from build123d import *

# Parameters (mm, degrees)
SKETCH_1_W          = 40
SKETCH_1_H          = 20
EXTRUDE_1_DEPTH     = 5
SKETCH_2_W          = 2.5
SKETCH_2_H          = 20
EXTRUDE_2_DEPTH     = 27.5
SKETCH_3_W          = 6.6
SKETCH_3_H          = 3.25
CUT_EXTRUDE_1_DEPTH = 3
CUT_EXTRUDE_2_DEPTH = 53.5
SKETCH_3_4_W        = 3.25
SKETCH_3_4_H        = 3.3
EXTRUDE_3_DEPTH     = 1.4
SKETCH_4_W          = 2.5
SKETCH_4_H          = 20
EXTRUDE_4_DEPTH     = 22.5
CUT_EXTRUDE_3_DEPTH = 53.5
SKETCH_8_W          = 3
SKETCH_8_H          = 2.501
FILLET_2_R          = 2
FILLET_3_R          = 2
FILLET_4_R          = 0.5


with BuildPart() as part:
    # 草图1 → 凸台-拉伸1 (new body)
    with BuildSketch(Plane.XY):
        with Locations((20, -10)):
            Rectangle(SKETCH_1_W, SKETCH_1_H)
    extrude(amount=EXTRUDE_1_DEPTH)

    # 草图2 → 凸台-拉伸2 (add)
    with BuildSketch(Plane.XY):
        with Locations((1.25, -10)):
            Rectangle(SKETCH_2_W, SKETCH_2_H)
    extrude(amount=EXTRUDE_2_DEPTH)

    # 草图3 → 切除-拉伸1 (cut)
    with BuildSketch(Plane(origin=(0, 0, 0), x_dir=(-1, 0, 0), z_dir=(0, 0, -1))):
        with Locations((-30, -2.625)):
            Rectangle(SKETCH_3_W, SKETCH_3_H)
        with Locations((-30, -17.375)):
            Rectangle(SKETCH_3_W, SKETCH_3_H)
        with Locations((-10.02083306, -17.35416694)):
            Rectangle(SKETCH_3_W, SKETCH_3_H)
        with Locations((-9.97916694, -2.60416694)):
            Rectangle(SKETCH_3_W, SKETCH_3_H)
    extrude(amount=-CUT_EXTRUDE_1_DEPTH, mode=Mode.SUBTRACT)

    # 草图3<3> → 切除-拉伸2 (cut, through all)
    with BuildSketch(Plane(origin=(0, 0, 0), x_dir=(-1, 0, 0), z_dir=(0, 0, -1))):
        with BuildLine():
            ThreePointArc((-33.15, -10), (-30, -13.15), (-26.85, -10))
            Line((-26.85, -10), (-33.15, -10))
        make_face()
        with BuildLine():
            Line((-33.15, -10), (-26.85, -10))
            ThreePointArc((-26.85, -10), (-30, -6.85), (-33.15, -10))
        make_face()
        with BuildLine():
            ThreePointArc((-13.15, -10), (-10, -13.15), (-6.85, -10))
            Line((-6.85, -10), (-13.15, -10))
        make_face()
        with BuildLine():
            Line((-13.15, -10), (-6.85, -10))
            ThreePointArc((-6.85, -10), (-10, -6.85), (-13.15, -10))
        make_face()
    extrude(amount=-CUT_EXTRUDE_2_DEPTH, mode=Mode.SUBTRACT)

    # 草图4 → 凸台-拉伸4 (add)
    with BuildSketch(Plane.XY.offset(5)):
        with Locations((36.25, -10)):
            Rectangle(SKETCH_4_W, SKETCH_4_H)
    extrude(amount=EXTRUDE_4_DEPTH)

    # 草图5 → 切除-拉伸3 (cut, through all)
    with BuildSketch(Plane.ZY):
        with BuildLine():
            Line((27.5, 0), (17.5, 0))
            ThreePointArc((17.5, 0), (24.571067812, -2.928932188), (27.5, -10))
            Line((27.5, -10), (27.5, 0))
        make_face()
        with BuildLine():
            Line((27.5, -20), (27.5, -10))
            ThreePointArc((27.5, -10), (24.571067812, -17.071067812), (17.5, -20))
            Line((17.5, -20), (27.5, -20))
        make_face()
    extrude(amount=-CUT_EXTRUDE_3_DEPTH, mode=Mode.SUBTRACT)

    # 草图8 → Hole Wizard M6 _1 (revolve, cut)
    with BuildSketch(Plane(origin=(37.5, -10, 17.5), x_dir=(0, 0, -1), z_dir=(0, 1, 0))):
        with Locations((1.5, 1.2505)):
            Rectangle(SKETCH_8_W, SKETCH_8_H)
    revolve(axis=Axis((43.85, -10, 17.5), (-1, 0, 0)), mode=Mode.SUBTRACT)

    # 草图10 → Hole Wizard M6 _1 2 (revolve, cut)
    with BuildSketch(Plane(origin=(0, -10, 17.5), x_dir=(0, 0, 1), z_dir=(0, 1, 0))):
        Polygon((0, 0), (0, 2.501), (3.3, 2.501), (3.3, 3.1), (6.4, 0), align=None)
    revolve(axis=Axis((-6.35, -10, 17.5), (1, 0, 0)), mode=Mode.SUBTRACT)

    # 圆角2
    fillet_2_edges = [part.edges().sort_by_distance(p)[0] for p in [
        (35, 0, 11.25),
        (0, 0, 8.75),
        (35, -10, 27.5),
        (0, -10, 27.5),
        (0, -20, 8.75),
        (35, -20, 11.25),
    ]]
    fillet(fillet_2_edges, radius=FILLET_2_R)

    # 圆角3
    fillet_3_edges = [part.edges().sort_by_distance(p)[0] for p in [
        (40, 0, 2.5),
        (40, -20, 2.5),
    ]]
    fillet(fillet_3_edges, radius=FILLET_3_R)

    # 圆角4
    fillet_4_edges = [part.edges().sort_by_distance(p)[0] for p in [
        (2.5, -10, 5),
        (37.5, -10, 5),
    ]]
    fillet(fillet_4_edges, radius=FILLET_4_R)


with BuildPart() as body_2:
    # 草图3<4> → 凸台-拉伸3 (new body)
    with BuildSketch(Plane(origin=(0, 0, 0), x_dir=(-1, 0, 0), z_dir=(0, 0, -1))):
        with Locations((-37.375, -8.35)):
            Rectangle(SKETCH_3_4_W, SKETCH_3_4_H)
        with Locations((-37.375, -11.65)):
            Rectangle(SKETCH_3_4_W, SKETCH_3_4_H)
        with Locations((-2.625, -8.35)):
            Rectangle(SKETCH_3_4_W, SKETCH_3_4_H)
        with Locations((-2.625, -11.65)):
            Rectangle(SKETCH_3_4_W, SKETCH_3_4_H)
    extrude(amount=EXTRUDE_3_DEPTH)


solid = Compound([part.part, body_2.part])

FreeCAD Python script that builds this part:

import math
import FreeCAD as App
import Part
import Sketcher
Q = App.Units.Quantity


def edges_at(feature, points):
    """Names of the edges that pass closest to the given points."""
    edges = feature.Shape.Edges
    near = lambda p: min(range(len(edges)), key=lambda i: edges[i].distToShape(Part.Vertex(*p))[0])
    return sorted({f"Edge{near(p) + 1}" for p in points})

doc = App.newDocument("Part")
body = doc.addObject("PartDesign::Body", "Body")

sketch1 = body.newObject("Sketcher::SketchObject", "Sketch")
sketch1.AttachmentSupport = (doc.getObject("XY_Plane"), [""])
sketch1.MapMode = "FlatFace"
sketch1.addGeometry([
    Part.LineSegment(App.Vector(0, 0, 0), App.Vector(0, -20, 0)),
    Part.LineSegment(App.Vector(0, -20, 0), App.Vector(40, -20, 0)),
    Part.LineSegment(App.Vector(40, -20, 0), App.Vector(40, 0, 0)),
    Part.LineSegment(App.Vector(40, 0, 0), App.Vector(0, 0, 0)),
], False)
sketch1.addConstraint([
    Sketcher.Constraint("Coincident", 0, 2, 1, 1),
    Sketcher.Constraint("Coincident", 1, 2, 2, 1),
    Sketcher.Constraint("Coincident", 2, 2, 3, 1),
    Sketcher.Constraint("Coincident", 3, 2, 0, 1),
    Sketcher.Constraint("Vertical", 0),
    Sketcher.Constraint("Horizontal", 1),
    Sketcher.Constraint("Vertical", 2),
    Sketcher.Constraint("Horizontal", 3),
    Sketcher.Constraint("Coincident", 3, 2, -1, 1),
    Sketcher.Constraint("DistanceX", 1, 1, 1, 2, 40.0),
    Sketcher.Constraint("DistanceY", 0, 2, 0, 1, 20.0),
])
pad1 = body.newObject("PartDesign::Pad", "Pad")
pad1.Profile = sketch1
pad1.Length = 5

sketch2 = body.newObject("Sketcher::SketchObject", "Sketch001")
sketch2.AttachmentSupport = (doc.getObject("XY_Plane"), [""])
sketch2.MapMode = "FlatFace"
sketch2.addGeometry([
    Part.LineSegment(App.Vector(0, 0, 0), App.Vector(0, -20, 0)),
    Part.LineSegment(App.Vector(0, -20, 0), App.Vector(2.5, -20, 0)),
    Part.LineSegment(App.Vector(2.5, -20, 0), App.Vector(2.5, 0, 0)),
    Part.LineSegment(App.Vector(2.5, 0, 0), App.Vector(0, 0, 0)),
], False)
sketch2.addConstraint([
    Sketcher.Constraint("Coincident", 0, 2, 1, 1),
    Sketcher.Constraint("Coincident", 1, 2, 2, 1),
    Sketcher.Constraint("Coincident", 2, 2, 3, 1),
    Sketcher.Constraint("Coincident", 3, 2, 0, 1),
    Sketcher.Constraint("Vertical", 0),
    Sketcher.Constraint("Horizontal", 1),
    Sketcher.Constraint("Vertical", 2),
    Sketcher.Constraint("Horizontal", 3),
    Sketcher.Constraint("Coincident", 3, 2, -1, 1),
    Sketcher.Constraint("DistanceY", 0, 2, 0, 1, 20.0),
    Sketcher.Constraint("DistanceX", 1, 1, 1, 2, 2.5),
])
pad2 = body.newObject("PartDesign::Pad", "Pad001")
pad2.Profile = sketch2
pad2.Length = 27.5

sketch3 = body.newObject("Sketcher::SketchObject", "Sketch002")
sketch3.AttachmentSupport = (doc.getObject("XY_Plane"), [""])
sketch3.MapMode = "FlatFace"
sketch3.addGeometry([
    Part.LineSegment(App.Vector(33.3, -1, 0), App.Vector(33.3, -4.2, 0)),
    Part.LineSegment(App.Vector(33.3, -4.2, 0), App.Vector(26.7, -4.2, 0)),
    Part.LineSegment(App.Vector(26.7, -4.2, 0), App.Vector(26.7, -1, 0)),
    Part.LineSegment(App.Vector(26.7, -1, 0), App.Vector(33.3, -1, 0)),
    Part.LineSegment(App.Vector(33.3, -15.8, 0), App.Vector(33.3, -19, 0)),
    Part.LineSegment(App.Vector(33.3, -19, 0), App.Vector(26.7, -19, 0)),
    Part.LineSegment(App.Vector(26.7, -19, 0), App.Vector(26.7, -15.8, 0)),
    Part.LineSegment(App.Vector(26.7, -15.8, 0), App.Vector(33.3, -15.8, 0)),
    Part.LineSegment(App.Vector(13.3, -15.7, 0), App.Vector(13.3, -19, 0)),
    Part.LineSegment(App.Vector(13.3, -19, 0), App.Vector(6.7, -19, 0)),
    Part.LineSegment(App.Vector(6.7, -19, 0), App.Vector(6.7, -15.7, 0)),
    Part.LineSegment(App.Vector(6.7, -15.7, 0), App.Vector(13.3, -15.7, 0)),
    Part.LineSegment(App.Vector(13.3, -1, 0), App.Vector(13.3, -4.2, 0)),
    Part.LineSegment(App.Vector(13.3, -4.2, 0), App.Vector(6.7, -4.2, 0)),
    Part.LineSegment(App.Vector(6.7, -4.2, 0), App.Vector(6.7, -1, 0)),
    Part.LineSegment(App.Vector(6.7, -1, 0), App.Vector(13.3, -1, 0)),
], False)
sketch3.addConstraint([
    Sketcher.Constraint("Coincident", 0, 2, 1, 1),
    Sketcher.Constraint("Coincident", 1, 2, 2, 1),
    Sketcher.Constraint("Coincident", 2, 2, 3, 1),
    Sketcher.Constraint("Coincident", 3, 2, 0, 1),
    Sketcher.Constraint("Coincident", 4, 2, 5, 1),
    Sketcher.Constraint("Coincident", 5, 2, 6, 1),
    Sketcher.Constraint("Coincident", 6, 2, 7, 1),
    Sketcher.Constraint("Coincident", 7, 2, 4, 1),
    Sketcher.Constraint("Coincident", 8, 2, 9, 1),
    Sketcher.Constraint("Coincident", 9, 2, 10, 1),
    Sketcher.Constraint("Coincident", 10, 2, 11, 1),
    Sketcher.Constraint("Coincident", 11, 2, 8, 1),
    Sketcher.Constraint("Coincident", 12, 2, 13, 1),
    Sketcher.Constraint("Coincident", 13, 2, 14, 1),
    Sketcher.Constraint("Coincident", 14, 2, 15, 1),
    Sketcher.Constraint("Coincident", 15, 2, 12, 1),
    Sketcher.Constraint("Vertical", 0),
    Sketcher.Constraint("Horizontal", 1),
    Sketcher.Constraint("Vertical", 2),
    Sketcher.Constraint("Horizontal", 3),
    Sketcher.Constraint("Vertical", 4),
    Sketcher.Constraint("Horizontal", 5),
    Sketcher.Constraint("Vertical", 6),
    Sketcher.Constraint("Horizontal", 7),
    Sketcher.Constraint("Vertical", 8),
    Sketcher.Constraint("Horizontal", 9),
    Sketcher.Constraint("Vertical", 10),
    Sketcher.Constraint("Horizontal", 11),
    Sketcher.Constraint("Vertical", 12),
    Sketcher.Constraint("Horizontal", 13),
    Sketcher.Constraint("Vertical", 14),
    Sketcher.Constraint("Horizontal", 15),
    Sketcher.Constraint("Vertical", 3, 2, 4, 2),
    Sketcher.Constraint("Vertical", 2, 2, 5, 2),
    Sketcher.Constraint("Equal", 7, 9),
    Sketcher.Constraint("Equal", 11, 13),
    Sketcher.Constraint("Equal", 2, 4),
    Sketcher.Constraint("Equal", 6, 8),
    Sketcher.Constraint("Equal", 10, 12),
    Sketcher.Constraint("DistanceX", 1, 2, 1, 1, 6.6),
    Sketcher.Constraint("DistanceY", 2, 2, -1, 1, 1.0),
    Sketcher.Constraint("DistanceY", 4, 2, -1, 1, 19.0),
    Sketcher.Constraint("DistanceY", 9, 2, 14, 2, 18.0),
    Sketcher.Constraint("DistanceY", 0, 2, 0, 1, 3.25),
    Sketcher.Constraint("DistanceX", -1, 1, 0, 2, 33.3),
    Sketcher.Constraint("DistanceX", -1, 1, 8, 2, 13.320833),
    Sketcher.Constraint("DistanceY", 8, 2, -1, 1, 18.979167),
    Sketcher.Constraint("DistanceX", -1, 1, 12, 2, 13.279167),
])
pocket1 = body.newObject("PartDesign::Pocket", "Pocket")
pocket1.Profile = sketch3
pocket1.Length = 3
pocket1.Reversed = True

sketch4 = body.newObject("Sketcher::SketchObject", "Sketch003")
sketch4.AttachmentSupport = (doc.getObject("XY_Plane"), [""])
sketch4.MapMode = "FlatFace"
sketch4.addGeometry([
    Part.Circle(App.Vector(30, -10, 0), App.Vector(0, 0, 1), 3.1),
    Part.Circle(App.Vector(10, -10, 0), App.Vector(0, 0, 1), 3.1),
], False)
sketch4.addConstraint([
    Sketcher.Constraint("Equal", 0, 1),
    Sketcher.Constraint("Horizontal", 0, 3, 1, 3),
    Sketcher.Constraint("Diameter", 0, 6.3),
    Sketcher.Constraint("DistanceX", -1, 1, 0, 3, 30.0),
    Sketcher.Constraint("DistanceY", 0, 3, -1, 1, 10.0),
    Sketcher.Constraint("DistanceX", -1, 1, 1, 3, 10.0),
])
pocket2 = body.newObject("PartDesign::Pocket", "Pocket001")
pocket2.Profile = sketch4
pocket2.Type = "ThroughAll"
pocket2.Reversed = True

sketch5 = body.newObject("Sketcher::SketchObject", "Sketch004")
sketch5.AttachmentSupport = (doc.getObject("XY_Plane"), [""])
sketch5.MapMode = "FlatFace"
sketch5.AttachmentOffset = App.Placement(App.Vector(0, 0, 5), App.Rotation())
sketch5.addGeometry([
    Part.LineSegment(App.Vector(35, 0, 0), App.Vector(35, -20, 0)),
    Part.LineSegment(App.Vector(35, -20, 0), App.Vector(37.5, -20, 0)),
    Part.LineSegment(App.Vector(37.5, -20, 0), App.Vector(37.5, 0, 0)),
    Part.LineSegment(App.Vector(37.5, 0, 0), App.Vector(35, 0, 0)),
], False)
sketch5.addConstraint([
    Sketcher.Constraint("Coincident", 0, 2, 1, 1),
    Sketcher.Constraint("Coincident", 1, 2, 2, 1),
    Sketcher.Constraint("Coincident", 2, 2, 3, 1),
    Sketcher.Constraint("Coincident", 3, 2, 0, 1),
    Sketcher.Constraint("Vertical", 0),
    Sketcher.Constraint("Horizontal", 1),
    Sketcher.Constraint("Vertical", 2),
    Sketcher.Constraint("Horizontal", 3),
    Sketcher.Constraint("PointOnObject", 2, 2, -1),
    Sketcher.Constraint("DistanceY", 0, 2, 0, 1, 20.0),
    Sketcher.Constraint("DistanceX", 1, 1, 1, 2, 2.5),
    Sketcher.Constraint("DistanceX", -1, 1, 0, 2, 35.0),
])
pad3 = body.newObject("PartDesign::Pad", "Pad002")
pad3.Profile = sketch5
pad3.Length = 22.5

sketch6 = body.newObject("Sketcher::SketchObject", "Sketch005")
sketch6.AttachmentSupport = (doc.getObject("YZ_Plane"), [""])
sketch6.MapMode = "FlatFace"
sketch6.addGeometry([
    Part.LineSegment(App.Vector(0, 28, 0), App.Vector(0, 18, 0)),
    Part.ArcOfCircle(Part.Circle(App.Vector(-10, 18, 0), App.Vector(0, 0, 1), 10), math.radians(0), math.radians(90)),
    Part.LineSegment(App.Vector(-10, 28, 0), App.Vector(0, 28, 0)),
    Part.LineSegment(App.Vector(-20, 28, 0), App.Vector(-10, 28, 0)),
    Part.ArcOfCircle(Part.Circle(App.Vector(-10, 18, 0), App.Vector(0, 0, 1), 10), math.radians(90), math.radians(180)),
    Part.LineSegment(App.Vector(-20, 18, 0), App.Vector(-20, 28, 0)),
], False)
sketch6.addConstraint([
    Sketcher.Constraint("Tangent", 0, 2, 1, 1),
    Sketcher.Constraint("Tangent", 1, 2, 2, 1),
    Sketcher.Constraint("Coincident", 2, 2, 0, 1),
    Sketcher.Constraint("Tangent", 3, 2, 4, 1),
    Sketcher.Constraint("Tangent", 4, 2, 5, 1),
    Sketcher.Constraint("Coincident", 5, 2, 3, 1),
    Sketcher.Constraint("Vertical", 0),
    Sketcher.Constraint("Horizontal", 2),
    Sketcher.Constraint("Horizontal", 3),
    Sketcher.Constraint("Vertical", 5),
    Sketcher.Constraint("Coincident", 4, 3, 1, 3),
    Sketcher.Constraint("Equal", 1, 4),
    Sketcher.Constraint("PointOnObject", 0, 2, -2),
    Sketcher.Constraint("Radius", 1, 10.0),
    Sketcher.Constraint("DistanceY", -1, 1, 1, 3, 17.5),
])
pocket3 = body.newObject("PartDesign::Pocket", "Pocket002")
pocket3.Profile = sketch6
pocket3.Type = "ThroughAll"
pocket3.Reversed = True

sketch7 = body.newObject("Sketcher::SketchObject", "Sketch006")
sketch7.AttachmentSupport = (doc.getObject("XZ_Plane"), [""])
sketch7.MapMode = "FlatFace"
sketch7.AttachmentOffset = App.Placement(App.Vector(0, 0, 10), App.Rotation())
sketch7.addGeometry([
    Part.LineSegment(App.Vector(35, 17.5, 0), App.Vector(37.5, 17.5, 0)),
    Part.LineSegment(App.Vector(37.5, 17.5, 0), App.Vector(37.5, 14.5, 0)),
    Part.LineSegment(App.Vector(37.5, 14.5, 0), App.Vector(35, 14.5, 0)),
    Part.LineSegment(App.Vector(35, 14.5, 0), App.Vector(35, 17.5, 0)),
], False)
sketch7.addGeometry(Part.LineSegment(App.Vector(37.5, 17.5, 0), App.Vector(35, 17.5, 0)), True)
sketch7.addConstraint([
    Sketcher.Constraint("Coincident", 0, 2, 1, 1),
    Sketcher.Constraint("Coincident", 1, 2, 2, 1),
    Sketcher.Constraint("Coincident", 2, 2, 3, 1),
    Sketcher.Constraint("Coincident", 3, 2, 0, 1),
    Sketcher.Constraint("Horizontal", 0),
    Sketcher.Constraint("Vertical", 1),
    Sketcher.Constraint("Horizontal", 2),
    Sketcher.Constraint("Vertical", 3),
    Sketcher.Constraint("Horizontal", 4),
    Sketcher.Constraint("Coincident", 4, 1, 0, 2),
    Sketcher.Constraint("Vertical", 2, 2, 4, 2),
    Sketcher.Constraint("DistanceY", 1, 2, 1, 1, 3.0),
    Sketcher.Constraint("DistanceX", -1, 1, 0, 2, 37.5),
    Sketcher.Constraint("DistanceY", -1, 1, 0, 2, 17.5),
    Sketcher.Constraint("DistanceX", 0, 1, 0, 2, 2.501),
])
groove = body.newObject("PartDesign::Groove", "Groove")
groove.Profile = sketch7
groove.ReferenceAxis = (sketch7, ["Axis0"])
groove.Angle = 360

sketch8 = body.newObject("Sketcher::SketchObject", "Sketch007")
sketch8.AttachmentSupport = (doc.getObject("XZ_Plane"), [""])
sketch8.MapMode = "FlatFace"
sketch8.AttachmentOffset = App.Placement(App.Vector(0, 0, 10), App.Rotation())
sketch8.addGeometry([
    Part.LineSegment(App.Vector(2.5, 17.5, 0), App.Vector(0, 17.5, 0)),
    Part.LineSegment(App.Vector(0, 17.5, 0), App.Vector(0, 23.9, 0)),
    Part.LineSegment(App.Vector(0, 23.9, 0), App.Vector(3.1, 20.8, 0)),
    Part.LineSegment(App.Vector(3.1, 20.8, 0), App.Vector(2.5, 20.8, 0)),
    Part.LineSegment(App.Vector(2.5, 20.8, 0), App.Vector(2.5, 17.5, 0)),
], False)
sketch8.addGeometry(Part.LineSegment(App.Vector(0, 17.5, 0), App.Vector(3.1, 17.5, 0)), True)
sketch8.addConstraint([
    Sketcher.Constraint("Coincident", 0, 2, 1, 1),
    Sketcher.Constraint("Coincident", 1, 2, 2, 1),
    Sketcher.Constraint("Coincident", 2, 2, 3, 1),
    Sketcher.Constraint("Coincident", 3, 2, 4, 1),
    Sketcher.Constraint("Coincident", 4, 2, 0, 1),
    Sketcher.Constraint("Horizontal", 0),
    Sketcher.Constraint("Vertical", 1),
    Sketcher.Constraint("Horizontal", 3),
    Sketcher.Constraint("Vertical", 4),
    Sketcher.Constraint("Horizontal", 5),
    Sketcher.Constraint("Coincident", 5, 1, 0, 2),
    Sketcher.Constraint("PointOnObject", 0, 2, -2),
    Sketcher.Constraint("Vertical", 2, 2, 5, 2),
    Sketcher.Constraint("Angle", 2, Q("-45 deg")),
    Sketcher.Constraint("DistanceX", 5, 1, 5, 2, 3.1),
    Sketcher.Constraint("DistanceY", 1, 1, 1, 2, 6.4),
    Sketcher.Constraint("DistanceY", -1, 1, 0, 2, 17.5),
    Sketcher.Constraint("DistanceX", 0, 2, 0, 1, 2.501),
])
groove2 = body.newObject("PartDesign::Groove", "Groove001")
groove2.Profile = sketch8
groove2.ReferenceAxis = (sketch8, ["Axis0"])
groove2.Angle = 360
doc.recompute()

fillet = body.newObject("PartDesign::Fillet", "Fillet")
fillet.Base = (groove2, edges_at(groove2, [
    (35, 0, 11.25),
    (0, 0, 8.75),
    (35, -17.071, 24.571),
    (0, -17.071, 24.571),
    (0, -20, 8.75),
    (35, -20, 11.25),
]))
fillet.Radius = 2
doc.recompute()

fillet2 = body.newObject("PartDesign::Fillet", "Fillet001")
fillet2.Base = (fillet, edges_at(fillet, [(40, 0, 2.5), (40, -20, 2.5)]))
fillet2.Radius = 2
doc.recompute()

fillet3 = body.newObject("PartDesign::Fillet", "Fillet002")
fillet3.Base = (fillet2, edges_at(fillet2, [(2.5, -10, 5), (37.5, -10, 5)]))
fillet3.Radius = 0.5
body2 = doc.addObject("PartDesign::Body", "Body001")
body2.AllowCompound = True

sketch9 = body2.newObject("Sketcher::SketchObject", "Sketch008")
sketch9.AttachmentSupport = (doc.getObject("XY_Plane001"), [""])
sketch9.MapMode = "FlatFace"
sketch9.addGeometry([
    Part.LineSegment(App.Vector(39, -6.7, 0), App.Vector(39, -13.3, 0)),
    Part.LineSegment(App.Vector(39, -13.3, 0), App.Vector(35.8, -13.3, 0)),
    Part.LineSegment(App.Vector(35.8, -13.3, 0), App.Vector(35.8, -6.7, 0)),
    Part.LineSegment(App.Vector(35.8, -6.7, 0), App.Vector(39, -6.7, 0)),
    Part.LineSegment(App.Vector(4.2, -6.7, 0), App.Vector(4.2, -13.3, 0)),
    Part.LineSegment(App.Vector(4.2, -13.3, 0), App.Vector(1, -13.3, 0)),
    Part.LineSegment(App.Vector(1, -13.3, 0), App.Vector(1, -6.7, 0)),
    Part.LineSegment(App.Vector(1, -6.7, 0), App.Vector(4.2, -6.7, 0)),
], False)
sketch9.addConstraint([
    Sketcher.Constraint("Coincident", 0, 2, 1, 1),
    Sketcher.Constraint("Coincident", 1, 2, 2, 1),
    Sketcher.Constraint("Coincident", 2, 2, 3, 1),
    Sketcher.Constraint("Coincident", 3, 2, 0, 1),
    Sketcher.Constraint("Coincident", 4, 2, 5, 1),
    Sketcher.Constraint("Coincident", 5, 2, 6, 1),
    Sketcher.Constraint("Coincident", 6, 2, 7, 1),
    Sketcher.Constraint("Coincident", 7, 2, 4, 1),
    Sketcher.Constraint("Vertical", 0),
    Sketcher.Constraint("Horizontal", 1),
    Sketcher.Constraint("Vertical", 2),
    Sketcher.Constraint("Horizontal", 3),
    Sketcher.Constraint("Vertical", 4),
    Sketcher.Constraint("Horizontal", 5),
    Sketcher.Constraint("Vertical", 6),
    Sketcher.Constraint("Horizontal", 7),
    Sketcher.Constraint("Horizontal", 1, 2, 4, 2),
    Sketcher.Constraint("Horizontal", 3, 2, 6, 2),
    Sketcher.Constraint("Equal", 3, 5),
    Sketcher.Constraint("DistanceY", 0, 2, 0, 1, 6.6),
    Sketcher.Constraint("DistanceX", -1, 1, 0, 2, 39.0),
    Sketcher.Constraint("DistanceX", -1, 1, 5, 2, 1.0),
    Sketcher.Constraint("DistanceX", 1, 2, 1, 1, 3.25),
    Sketcher.Constraint("DistanceY", 0, 2, -1, 1, 13.3),
])
pad4 = body2.newObject("PartDesign::Pad", "Pad003")
pad4.Profile = sketch9
pad4.Length = 1.4
pad4.Reversed = True

doc.recompute()
